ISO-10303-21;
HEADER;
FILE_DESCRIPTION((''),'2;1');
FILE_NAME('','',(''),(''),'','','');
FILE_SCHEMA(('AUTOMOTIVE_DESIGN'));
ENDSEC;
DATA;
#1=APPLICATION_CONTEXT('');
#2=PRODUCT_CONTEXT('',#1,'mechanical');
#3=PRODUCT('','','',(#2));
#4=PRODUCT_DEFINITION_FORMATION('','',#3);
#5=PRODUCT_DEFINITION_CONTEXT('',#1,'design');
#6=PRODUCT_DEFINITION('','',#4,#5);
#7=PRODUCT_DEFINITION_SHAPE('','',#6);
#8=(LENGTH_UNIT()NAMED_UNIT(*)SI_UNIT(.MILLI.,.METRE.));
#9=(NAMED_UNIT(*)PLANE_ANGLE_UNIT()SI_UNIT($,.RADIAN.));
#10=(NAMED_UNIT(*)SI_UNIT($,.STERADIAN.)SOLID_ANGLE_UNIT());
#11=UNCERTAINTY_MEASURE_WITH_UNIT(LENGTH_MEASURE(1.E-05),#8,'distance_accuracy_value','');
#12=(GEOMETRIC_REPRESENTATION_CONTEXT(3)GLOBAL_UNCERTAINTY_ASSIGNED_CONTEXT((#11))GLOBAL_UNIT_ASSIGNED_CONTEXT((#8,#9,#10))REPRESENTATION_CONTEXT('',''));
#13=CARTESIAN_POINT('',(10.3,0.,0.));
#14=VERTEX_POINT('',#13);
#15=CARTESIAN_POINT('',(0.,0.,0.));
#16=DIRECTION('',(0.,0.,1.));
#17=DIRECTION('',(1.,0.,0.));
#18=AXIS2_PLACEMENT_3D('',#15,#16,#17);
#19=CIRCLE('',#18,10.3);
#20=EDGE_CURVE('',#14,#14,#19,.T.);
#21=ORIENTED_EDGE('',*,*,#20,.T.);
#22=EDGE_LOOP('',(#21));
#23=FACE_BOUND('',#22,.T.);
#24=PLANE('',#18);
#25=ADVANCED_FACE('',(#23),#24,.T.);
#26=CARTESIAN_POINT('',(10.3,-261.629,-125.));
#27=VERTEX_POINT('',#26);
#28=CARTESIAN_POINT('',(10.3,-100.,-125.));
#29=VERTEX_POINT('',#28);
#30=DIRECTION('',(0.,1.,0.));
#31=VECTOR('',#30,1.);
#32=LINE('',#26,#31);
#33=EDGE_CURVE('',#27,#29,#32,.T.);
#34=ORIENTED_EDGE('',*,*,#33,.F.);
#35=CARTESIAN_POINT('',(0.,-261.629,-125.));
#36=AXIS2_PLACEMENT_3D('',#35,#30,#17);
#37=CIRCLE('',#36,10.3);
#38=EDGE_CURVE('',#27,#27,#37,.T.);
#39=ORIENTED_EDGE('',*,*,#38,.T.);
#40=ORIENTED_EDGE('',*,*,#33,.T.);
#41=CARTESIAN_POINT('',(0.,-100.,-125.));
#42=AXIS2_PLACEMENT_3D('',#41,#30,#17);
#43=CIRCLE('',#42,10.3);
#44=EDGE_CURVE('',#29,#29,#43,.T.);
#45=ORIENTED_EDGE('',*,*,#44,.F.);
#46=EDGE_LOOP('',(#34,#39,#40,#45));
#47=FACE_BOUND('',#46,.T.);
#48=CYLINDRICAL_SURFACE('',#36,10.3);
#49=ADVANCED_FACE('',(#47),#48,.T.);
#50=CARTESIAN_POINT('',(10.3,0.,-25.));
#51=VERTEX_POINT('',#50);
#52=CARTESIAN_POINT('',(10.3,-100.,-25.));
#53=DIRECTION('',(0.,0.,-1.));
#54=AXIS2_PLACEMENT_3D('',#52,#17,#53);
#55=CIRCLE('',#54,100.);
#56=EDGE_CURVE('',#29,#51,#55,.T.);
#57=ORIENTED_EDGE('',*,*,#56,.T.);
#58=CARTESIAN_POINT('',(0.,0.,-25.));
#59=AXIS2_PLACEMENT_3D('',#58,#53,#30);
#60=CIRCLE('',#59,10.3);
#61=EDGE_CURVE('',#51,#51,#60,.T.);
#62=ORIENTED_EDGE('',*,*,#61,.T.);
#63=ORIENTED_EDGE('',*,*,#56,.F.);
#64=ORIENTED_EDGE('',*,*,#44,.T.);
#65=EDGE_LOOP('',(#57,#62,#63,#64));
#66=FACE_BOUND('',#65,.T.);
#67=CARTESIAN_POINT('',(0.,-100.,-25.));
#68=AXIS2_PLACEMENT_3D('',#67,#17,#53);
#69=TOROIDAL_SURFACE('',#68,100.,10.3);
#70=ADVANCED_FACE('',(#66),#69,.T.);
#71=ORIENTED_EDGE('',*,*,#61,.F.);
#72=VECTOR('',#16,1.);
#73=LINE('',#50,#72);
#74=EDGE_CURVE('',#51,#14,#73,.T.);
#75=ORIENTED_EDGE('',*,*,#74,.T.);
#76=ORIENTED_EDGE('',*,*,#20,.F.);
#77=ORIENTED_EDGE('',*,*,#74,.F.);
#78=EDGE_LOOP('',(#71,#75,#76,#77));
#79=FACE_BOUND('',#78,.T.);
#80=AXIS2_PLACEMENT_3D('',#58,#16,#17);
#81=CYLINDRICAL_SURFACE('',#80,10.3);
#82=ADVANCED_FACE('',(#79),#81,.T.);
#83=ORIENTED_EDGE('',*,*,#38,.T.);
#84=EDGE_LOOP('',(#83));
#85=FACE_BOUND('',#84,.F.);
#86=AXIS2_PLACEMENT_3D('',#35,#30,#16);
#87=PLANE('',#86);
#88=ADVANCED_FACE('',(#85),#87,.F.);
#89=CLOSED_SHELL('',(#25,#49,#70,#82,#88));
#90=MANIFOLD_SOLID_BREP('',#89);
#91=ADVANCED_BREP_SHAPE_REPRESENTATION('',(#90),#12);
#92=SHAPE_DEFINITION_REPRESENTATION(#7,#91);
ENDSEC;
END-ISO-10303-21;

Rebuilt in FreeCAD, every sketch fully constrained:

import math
import FreeCAD as App
import Part
import Sketcher

V = App.Vector

doc = App.newDocument("Part")
body = doc.addObject("PartDesign::Body", "Body")

# Sketch on XY plane
sketch1 = body.newObject("Sketcher::SketchObject", "Sketch")
sketch1.AttachmentSupport = (doc.getObject("XY_Plane"), [""])
sketch1.MapMode = "FlatFace"
sketch1.addGeometry(Part.Circle(V(0, 0, 0), V(0, 0, 1), 10), False)
sketch1.addConstraint([
    Sketcher.Constraint("Coincident", 0, 3, -1, 1),
    Sketcher.Constraint("Diameter", 0, 20.6),
])

# Sketch on YZ plane
sketch2 = body.newObject("Sketcher::SketchObject", "Sketch001")
sketch2.AttachmentSupport = (doc.getObject("YZ_Plane"), [""])
sketch2.MapMode = "FlatFace"
sketch2.addGeometry([
    Part.LineSegment(V(-262, -125, 0), V(-100, -125, 0)),
    Part.ArcOfCircle(Part.Circle(V(-100, -25, 0), V(0, 0, 1), 100), math.radians(-90), math.radians(0)),
    Part.LineSegment(V(0, -25, 0), V(0, 0, 0)),
], False)
sketch2.addConstraint([
    Sketcher.Constraint("Tangent", 0, 2, 1, 1),
    Sketcher.Constraint("Tangent", 1, 2, 2, 1),
    Sketcher.Constraint("Horizontal", 0),
    Sketcher.Constraint("Vertical", 2),
    Sketcher.Constraint("Coincident", 2, 2, -1, 1),
    Sketcher.Constraint("Radius", 1, 100.0),
    Sketcher.Constraint("DistanceY", 2, 1, 2, 2, 25.0),
    Sketcher.Constraint("DistanceX", 0, 1, 0, 2, 161.629),
])
doc.recompute()

additivepipe = body.newObject("PartDesign::AdditivePipe", "AdditivePipe")
additivepipe.Profile = sketch1
additivepipe.Spine = (sketch2, ["Edge1", "Edge2", "Edge3"])

doc.recompute()
